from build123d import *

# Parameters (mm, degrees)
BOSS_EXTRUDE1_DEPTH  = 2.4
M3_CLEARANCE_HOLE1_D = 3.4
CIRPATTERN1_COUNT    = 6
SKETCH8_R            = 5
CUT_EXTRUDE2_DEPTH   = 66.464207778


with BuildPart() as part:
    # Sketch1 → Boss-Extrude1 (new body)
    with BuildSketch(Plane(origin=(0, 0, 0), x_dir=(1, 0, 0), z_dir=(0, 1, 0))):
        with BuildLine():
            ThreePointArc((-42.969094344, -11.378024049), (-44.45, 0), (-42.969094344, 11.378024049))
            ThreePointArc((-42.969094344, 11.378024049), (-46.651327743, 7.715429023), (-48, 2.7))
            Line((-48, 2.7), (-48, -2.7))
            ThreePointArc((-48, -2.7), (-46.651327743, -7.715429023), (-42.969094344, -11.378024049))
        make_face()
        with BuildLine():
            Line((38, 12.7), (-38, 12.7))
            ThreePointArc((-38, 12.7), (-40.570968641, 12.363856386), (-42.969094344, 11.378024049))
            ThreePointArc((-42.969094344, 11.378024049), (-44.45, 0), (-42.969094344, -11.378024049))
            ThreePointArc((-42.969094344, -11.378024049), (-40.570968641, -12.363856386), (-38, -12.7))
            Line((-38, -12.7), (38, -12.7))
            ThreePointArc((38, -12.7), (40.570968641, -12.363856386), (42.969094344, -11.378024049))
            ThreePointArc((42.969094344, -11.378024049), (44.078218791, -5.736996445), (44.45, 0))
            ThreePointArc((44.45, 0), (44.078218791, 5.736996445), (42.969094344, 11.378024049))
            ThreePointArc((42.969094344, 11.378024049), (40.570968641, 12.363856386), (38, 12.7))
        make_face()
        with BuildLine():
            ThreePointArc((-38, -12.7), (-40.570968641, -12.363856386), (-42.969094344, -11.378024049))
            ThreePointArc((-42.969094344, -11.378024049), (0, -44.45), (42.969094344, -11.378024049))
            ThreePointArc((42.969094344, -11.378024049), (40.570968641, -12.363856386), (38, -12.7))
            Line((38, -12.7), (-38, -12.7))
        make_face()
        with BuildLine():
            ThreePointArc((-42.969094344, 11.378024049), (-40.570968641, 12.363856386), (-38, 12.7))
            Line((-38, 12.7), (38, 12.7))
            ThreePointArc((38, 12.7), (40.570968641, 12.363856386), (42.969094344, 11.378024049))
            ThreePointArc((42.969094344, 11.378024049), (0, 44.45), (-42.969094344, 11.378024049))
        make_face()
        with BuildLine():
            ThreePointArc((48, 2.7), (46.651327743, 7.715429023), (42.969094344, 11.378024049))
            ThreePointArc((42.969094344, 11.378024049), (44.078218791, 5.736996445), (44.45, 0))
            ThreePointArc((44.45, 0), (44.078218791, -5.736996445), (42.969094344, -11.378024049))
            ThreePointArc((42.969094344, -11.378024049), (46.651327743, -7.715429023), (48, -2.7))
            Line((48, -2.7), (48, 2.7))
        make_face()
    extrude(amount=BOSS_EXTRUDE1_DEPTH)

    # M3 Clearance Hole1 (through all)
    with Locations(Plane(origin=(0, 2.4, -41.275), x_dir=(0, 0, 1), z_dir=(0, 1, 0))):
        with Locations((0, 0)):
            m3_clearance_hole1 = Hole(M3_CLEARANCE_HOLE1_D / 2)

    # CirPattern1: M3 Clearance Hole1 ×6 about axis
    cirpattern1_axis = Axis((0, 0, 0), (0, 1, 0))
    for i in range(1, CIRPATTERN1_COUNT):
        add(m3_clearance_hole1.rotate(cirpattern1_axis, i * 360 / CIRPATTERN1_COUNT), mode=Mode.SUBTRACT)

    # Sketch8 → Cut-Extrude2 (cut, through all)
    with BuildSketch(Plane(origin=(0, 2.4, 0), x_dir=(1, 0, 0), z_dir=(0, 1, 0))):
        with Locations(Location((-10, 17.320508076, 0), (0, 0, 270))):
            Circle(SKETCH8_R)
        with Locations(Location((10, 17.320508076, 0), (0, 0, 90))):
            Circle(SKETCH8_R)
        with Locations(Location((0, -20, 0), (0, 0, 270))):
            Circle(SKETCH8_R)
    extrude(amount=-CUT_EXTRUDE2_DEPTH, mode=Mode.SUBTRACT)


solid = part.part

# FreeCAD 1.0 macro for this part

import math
import FreeCAD as App
import Part
import Sketcher
Q = App.Units.Quantity

doc = App.newDocument("Part")
body = doc.addObject("PartDesign::Body", "Body")

sketch1 = doc.addObject("Sketcher::SketchObject", "Sketch")
body.addObject(sketch1)
sketch1.AttachmentSupport = (doc.XZ_Plane, [""])
sketch1.MapMode = "FlatFace"
sketch1.addGeometry([
    Part.ArcOfCircle(Part.Circle(App.Vector(-38, -3, 0), App.Vector(0, 0, 1), 10), math.radians(180), math.radians(240)),
    Part.LineSegment(App.Vector(-48, -3, 0), App.Vector(-48, 3, 0)),
    Part.ArcOfCircle(Part.Circle(App.Vector(-38, 3, 0), App.Vector(0, 0, 1), 10), math.radians(120), math.radians(180)),
    Part.ArcOfCircle(Part.Circle(App.Vector(0, 0, 0), App.Vector(0, 0, 1), 44), math.radians(15), math.radians(165)),
    Part.ArcOfCircle(Part.Circle(App.Vector(38, 3, 0), App.Vector(0, 0, 1), 10), math.radians(0), math.radians(60)),
    Part.LineSegment(App.Vector(48, 3, 0), App.Vector(48, -3, 0)),
    Part.ArcOfCircle(Part.Circle(App.Vector(38, -3, 0), App.Vector(0, 0, 1), 10), math.radians(-60), math.radians(0)),
    Part.ArcOfCircle(Part.Circle(App.Vector(0, 0, 0), App.Vector(0, 0, 1), 44), math.radians(-165), math.radians(-15)),
], False)
sketch1.addConstraint([
    Sketcher.Constraint("Tangent", 0, 1, 1, 1),
    Sketcher.Constraint("Tangent", 1, 2, 2, 2),
    Sketcher.Constraint("Coincident", 2, 1, 3, 2),
    Sketcher.Constraint("Coincident", 3, 1, 4, 2),
    Sketcher.Constraint("Tangent", 4, 1, 5, 1),
    Sketcher.Constraint("Tangent", 5, 2, 6, 2),
    Sketcher.Constraint("Coincident", 6, 1, 7, 2),
    Sketcher.Constraint("Coincident", 7, 1, 0, 2),
    Sketcher.Constraint("Vertical", 1),
    Sketcher.Constraint("Vertical", 5),
    Sketcher.Constraint("Coincident", 3, 3, -1, 1),
    Sketcher.Constraint("Coincident", 7, 3, -1, 1),
    Sketcher.Constraint("Equal", 0, 2),
    Sketcher.Constraint("Equal", 2, 4),
    Sketcher.Constraint("Equal", 4, 6),
    Sketcher.Constraint("Equal", 3, 7),
    Sketcher.Constraint("Symmetric", 0, 3, 4, 3, -1, 1),
    Sketcher.Constraint("Horizontal", 2, 3, 4, 3),
    Sketcher.Constraint("Horizontal", 0, 3, 6, 3),
    Sketcher.Constraint("Radius", 0, Q("10 mm")),
    Sketcher.Constraint("Radius", 3, Q("44.45 mm")),
    Sketcher.Constraint("DistanceY", 1, 1, 1, 2, Q("5.4 mm")),
    Sketcher.Constraint("DistanceX", 0, 3, -1, 1, Q("38 mm")),
])
pad1 = doc.addObject("PartDesign::Pad", "Pad")
body.addObject(pad1)
pad1.Profile = sketch1
pad1.Length = 2.4
pad1.Reversed = True

sketch2 = doc.addObject("Sketcher::SketchObject", "Sketch001")
body.addObject(sketch2)
sketch2.AttachmentSupport = (doc.XZ_Plane, [""])
sketch2.MapMode = "FlatFace"
sketch2.AttachmentOffset = App.Placement(App.Vector(0, 0, -2.4), App.Rotation())
sketch2.addGeometry(Part.Circle(App.Vector(0, -41.3, 0), App.Vector(0, 0, 1), 1.7), False)
sketch2.addConstraint([
    Sketcher.Constraint("PointOnObject", 0, 3, -2),
    Sketcher.Constraint("Diameter", 0, Q("3.4 mm")),
    Sketcher.Constraint("DistanceY", 0, 3, -1, 1, Q("41.275 mm")),
])
doc.recompute()
hole = doc.addObject("PartDesign::Hole", "Hole")
body.addObject(hole)
hole.Profile = sketch2
hole.ThreadType = "None"
hole.Diameter = 3.4
hole.DepthType = "ThroughAll"
hole.Reversed = True
doc.recompute()

polarpattern = doc.addObject("PartDesign::PolarPattern", "PolarPattern")
body.addObject(polarpattern)
polarpattern.Originals = [hole]
polarpattern.Axis = (doc.Y_Axis, [""])
polarpattern.Angle = 360
polarpattern.Occurrences = 6
body.Tip = polarpattern

sketch3 = doc.addObject("Sketcher::SketchObject", "Sketch002")
body.addObject(sketch3)
sketch3.AttachmentSupport = (doc.XZ_Plane, [""])
sketch3.MapMode = "FlatFace"
sketch3.AttachmentOffset = App.Placement(App.Vector(0, 0, -2.4), App.Rotation())
sketch3.addGeometry([
    Part.Circle(App.Vector(-10, -17, 0), App.Vector(0, 0, 1), 5),
    Part.Circle(App.Vector(10, -17, 0), App.Vector(0, 0, 1), 5),
    Part.Circle(App.Vector(0, 20, 0), App.Vector(0, 0, 1), 5),
], False)
sketch3.addConstraint([
    Sketcher.Constraint("Equal", 0, 1),
    Sketcher.Constraint("Equal", 1, 2),
    Sketcher.Constraint("Symmetric", 0, 3, 1, 3, -2),
    Sketcher.Constraint("PointOnObject", 2, 3, -2),
    Sketcher.Constraint("Diameter", 0, Q("10 mm")),
    Sketcher.Constraint("DistanceX", 0, 3, -1, 1, Q("10 mm")),
    Sketcher.Constraint("DistanceY", -1, 1, 2, 3, Q("20 mm")),
    Sketcher.Constraint("DistanceY", 0, 3, -1, 1, Q("17.320508 mm")),
])
pocket1 = doc.addObject("PartDesign::Pocket", "Pocket")
body.addObject(pocket1)
pocket1.Profile = sketch3
pocket1.Type = "ThroughAll"
pocket1.Reversed = True

doc.recompute()
